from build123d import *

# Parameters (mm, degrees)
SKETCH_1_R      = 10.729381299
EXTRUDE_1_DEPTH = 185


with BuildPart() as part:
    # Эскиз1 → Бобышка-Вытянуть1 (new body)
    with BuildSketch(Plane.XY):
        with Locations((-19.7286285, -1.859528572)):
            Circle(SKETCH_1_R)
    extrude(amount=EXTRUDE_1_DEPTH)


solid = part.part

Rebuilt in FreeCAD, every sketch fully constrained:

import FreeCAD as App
import Part
import Sketcher
from FreeCAD import Vector
Q = App.Units.Quantity

doc = App.newDocument("Part")
body = doc.addObject("PartDesign::Body", "Body")

sketch1 = body.newObject("Sketcher::SketchObject", "Sketch")
sketch1.AttachmentSupport = (doc.getObject("XY_Plane"), [""])
sketch1.MapMode = "FlatFace"
sketch1.addGeometry(Part.Circle(Vector(-20, -2, 0), Vector(0, 0, 1), 11), False)
sketch1.addConstraint(Sketcher.Constraint("Diameter", 0, Q("21.458763 mm")))
sketch1.addConstraint(Sketcher.Constraint("DistanceX", 0, 3, -1, 1, Q("19.728628 mm")))
sketch1.addConstraint(Sketcher.Constraint("DistanceY", 0, 3, -1, 1, Q("1.859529 mm")))
pad1 = body.newObject("PartDesign::Pad", "Pad")
pad1.Profile = sketch1
pad1.Length = 185

doc.recompute()
